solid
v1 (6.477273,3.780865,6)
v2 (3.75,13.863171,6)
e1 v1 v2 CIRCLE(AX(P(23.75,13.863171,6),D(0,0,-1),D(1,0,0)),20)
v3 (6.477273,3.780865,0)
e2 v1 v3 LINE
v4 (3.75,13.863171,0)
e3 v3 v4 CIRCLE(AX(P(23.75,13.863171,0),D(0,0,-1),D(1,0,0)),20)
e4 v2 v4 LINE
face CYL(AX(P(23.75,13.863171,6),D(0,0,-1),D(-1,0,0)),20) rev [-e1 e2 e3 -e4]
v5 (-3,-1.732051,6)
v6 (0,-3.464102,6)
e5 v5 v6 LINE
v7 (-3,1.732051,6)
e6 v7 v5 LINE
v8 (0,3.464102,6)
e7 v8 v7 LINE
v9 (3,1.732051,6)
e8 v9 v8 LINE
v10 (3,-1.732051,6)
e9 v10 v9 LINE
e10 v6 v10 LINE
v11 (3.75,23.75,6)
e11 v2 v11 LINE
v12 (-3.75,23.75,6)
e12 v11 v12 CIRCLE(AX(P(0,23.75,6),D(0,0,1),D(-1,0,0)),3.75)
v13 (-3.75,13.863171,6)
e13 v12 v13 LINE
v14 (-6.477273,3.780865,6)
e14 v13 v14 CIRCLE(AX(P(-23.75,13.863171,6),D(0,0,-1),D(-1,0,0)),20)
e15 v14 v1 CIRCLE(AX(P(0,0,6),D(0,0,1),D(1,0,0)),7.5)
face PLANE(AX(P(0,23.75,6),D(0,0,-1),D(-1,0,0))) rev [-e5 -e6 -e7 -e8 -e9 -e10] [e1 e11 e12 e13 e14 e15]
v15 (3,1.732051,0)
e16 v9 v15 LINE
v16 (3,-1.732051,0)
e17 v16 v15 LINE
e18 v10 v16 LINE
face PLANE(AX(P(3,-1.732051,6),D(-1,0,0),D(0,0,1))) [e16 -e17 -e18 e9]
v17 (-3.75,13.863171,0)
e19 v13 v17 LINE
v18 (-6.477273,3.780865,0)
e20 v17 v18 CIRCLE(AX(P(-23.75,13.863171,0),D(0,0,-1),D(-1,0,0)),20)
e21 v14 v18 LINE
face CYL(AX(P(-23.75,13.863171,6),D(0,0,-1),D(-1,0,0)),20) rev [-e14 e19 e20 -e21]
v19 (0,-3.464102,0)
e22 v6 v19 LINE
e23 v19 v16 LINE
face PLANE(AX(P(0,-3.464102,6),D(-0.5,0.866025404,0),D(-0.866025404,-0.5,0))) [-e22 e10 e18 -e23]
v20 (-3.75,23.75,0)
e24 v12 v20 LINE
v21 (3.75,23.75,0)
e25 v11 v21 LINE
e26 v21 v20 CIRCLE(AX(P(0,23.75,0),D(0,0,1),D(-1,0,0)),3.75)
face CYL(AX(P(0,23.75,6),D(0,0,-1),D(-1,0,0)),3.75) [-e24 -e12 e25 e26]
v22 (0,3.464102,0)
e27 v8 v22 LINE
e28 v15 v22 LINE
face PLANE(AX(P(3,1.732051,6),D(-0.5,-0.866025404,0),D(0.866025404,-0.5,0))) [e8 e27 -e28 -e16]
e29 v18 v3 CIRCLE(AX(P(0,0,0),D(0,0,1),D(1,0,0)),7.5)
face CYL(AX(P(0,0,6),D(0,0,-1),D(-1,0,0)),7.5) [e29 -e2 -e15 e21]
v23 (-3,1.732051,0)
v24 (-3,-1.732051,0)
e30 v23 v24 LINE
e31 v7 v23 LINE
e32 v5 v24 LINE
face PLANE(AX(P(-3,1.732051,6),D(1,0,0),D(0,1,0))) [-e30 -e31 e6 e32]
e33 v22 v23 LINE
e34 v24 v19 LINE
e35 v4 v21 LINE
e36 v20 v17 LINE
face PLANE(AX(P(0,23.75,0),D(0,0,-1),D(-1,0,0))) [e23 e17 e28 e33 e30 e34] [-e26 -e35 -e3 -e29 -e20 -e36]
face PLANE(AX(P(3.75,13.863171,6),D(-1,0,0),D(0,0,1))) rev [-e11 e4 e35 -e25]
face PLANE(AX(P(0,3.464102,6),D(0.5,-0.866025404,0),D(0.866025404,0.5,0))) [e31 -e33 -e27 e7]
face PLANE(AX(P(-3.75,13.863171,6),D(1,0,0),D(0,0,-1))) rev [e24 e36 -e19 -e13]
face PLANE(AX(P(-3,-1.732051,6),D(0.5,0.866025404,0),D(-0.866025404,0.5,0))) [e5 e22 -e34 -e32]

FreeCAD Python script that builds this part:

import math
import FreeCAD as App
import Part
import Sketcher
from FreeCAD import Vector
Q = App.Units.Quantity


def add_polygon(sketch, points):
    """Adds a closed chain of lines whose ends are joined by coincident constraints."""
    first, n = sketch.GeometryCount, len(points)
    for a, b in zip(points, points[1:] + points[:1]):
        sketch.addGeometry(Part.LineSegment(App.Vector(*a, 0), App.Vector(*b, 0)), False)
    for i in range(n):
        sketch.addConstraint(Sketcher.Constraint("Coincident", first + i, 2, first + (i + 1) % n, 1))

doc = App.newDocument("Part")
params = doc.addObject("Spreadsheet::Sheet", "Params")
for row, (alias, value) in enumerate([
    ("sketch1_radius", "20 mm"),
    ("sketch1_radius2", "7.5 mm"),
    ("sketch1_radius3", "3.75 mm"),
    ("pad1_length", "6 mm"),
], start=1):
    params.set(f"A{row}", alias)
    params.set(f"B{row}", "=" + value)
    params.setAlias(f"B{row}", alias)

body = doc.addObject("PartDesign::Body", "Body")

sketch1 = body.newObject("Sketcher::SketchObject", "Sketch")
sketch1.AttachmentSupport = (doc.getObject("XY_Plane"), [""])
sketch1.MapMode = "FlatFace"
sketch1.addGeometry(Part.LineSegment(Vector(-3.75, 23.75, 0), Vector(-3.75, 13.863171, 0)), False)
sketch1.addGeometry(Part.ArcOfCircle(Part.Circle(Vector(-23.75, 13.863171, 0), Vector(0, 0, 1), 20), math.radians(-30.272641), math.radians(0)), False)
sketch1.addGeometry(Part.ArcOfCircle(Part.Circle(Vector(0, 0, 0), Vector(0, 0, 1), 7.5), math.radians(149.727359), math.radians(390.272641)), False)
sketch1.addGeometry(Part.ArcOfCircle(Part.Circle(Vector(23.75, 13.863171, 0), Vector(0, 0, 1), 20), math.radians(-180), math.radians(-149.727359)), False)
sketch1.addGeometry(Part.LineSegment(Vector(3.75, 13.863171, 0), Vector(3.75, 23.75, 0)), False)
sketch1.addGeometry(Part.ArcOfCircle(Part.Circle(Vector(0, 23.75, 0), Vector(0, 0, 1), 3.75), math.radians(0), math.radians(180)), False)
add_polygon(sketch1, [(0, 3.464102), (3, 1.732051), (3, -1.732051), (0, -3.464102), (-3, -1.732051), (-3, 1.732051)])
sketch1.addConstraint([
    Sketcher.Constraint("Tangent", 0, 2, 1, 2),
    Sketcher.Constraint("Tangent", 1, 1, 2, 1),
    Sketcher.Constraint("Tangent", 2, 2, 3, 2),
    Sketcher.Constraint("Tangent", 3, 1, 4, 1),
    Sketcher.Constraint("Tangent", 4, 2, 5, 1),
    Sketcher.Constraint("Tangent", 5, 2, 0, 1),
    Sketcher.Constraint("Vertical", 0),
    Sketcher.Constraint("Vertical", 4),
    Sketcher.Constraint("Vertical", 7),
    Sketcher.Constraint("Vertical", 10),
    Sketcher.Constraint("Coincident", 2, 3, -1, 1),
    Sketcher.Constraint("Equal", 1, 3),
    Sketcher.Constraint("Symmetric", 6, 2, 9, 2, -1, 1),
    Sketcher.Constraint("Symmetric", 8, 2, 11, 2, -1, 1),
    Sketcher.Constraint("PointOnObject", 5, 3, -2),
    Sketcher.Constraint("PointOnObject", 8, 2, -2),
    Sketcher.Constraint("Parallel", 8, 11),
    Sketcher.Constraint("Horizontal", 7, 2, 9, 2),
    Sketcher.Constraint("Radius", 1, Q("20 mm")),
    Sketcher.Constraint("Radius", 2, Q("7.5 mm")),
    Sketcher.Constraint("Angle", 6, Q("-30 deg")),
    Sketcher.Constraint("Radius", 5, Q("3.75 mm")),
    Sketcher.Constraint("DistanceX", -1, 1, 6, 2, Q("3 mm")),
    Sketcher.Constraint("DistanceY", -1, 1, 5, 3, Q("23.75 mm")),
    Sketcher.Constraint("DistanceY", 7, 2, 7, 1, Q("3.464102 mm")),
])
sketch1.setExpression("Constraints[24]", "Params.sketch1_radius")
sketch1.setExpression("Constraints[25]", "Params.sketch1_radius2")
sketch1.setExpression("Constraints[27]", "Params.sketch1_radius3")
pad1 = body.newObject("PartDesign::Pad", "Pad")
pad1.Profile = sketch1
pad1.setExpression("Length", "Params.pad1_length")

doc.recompute()
